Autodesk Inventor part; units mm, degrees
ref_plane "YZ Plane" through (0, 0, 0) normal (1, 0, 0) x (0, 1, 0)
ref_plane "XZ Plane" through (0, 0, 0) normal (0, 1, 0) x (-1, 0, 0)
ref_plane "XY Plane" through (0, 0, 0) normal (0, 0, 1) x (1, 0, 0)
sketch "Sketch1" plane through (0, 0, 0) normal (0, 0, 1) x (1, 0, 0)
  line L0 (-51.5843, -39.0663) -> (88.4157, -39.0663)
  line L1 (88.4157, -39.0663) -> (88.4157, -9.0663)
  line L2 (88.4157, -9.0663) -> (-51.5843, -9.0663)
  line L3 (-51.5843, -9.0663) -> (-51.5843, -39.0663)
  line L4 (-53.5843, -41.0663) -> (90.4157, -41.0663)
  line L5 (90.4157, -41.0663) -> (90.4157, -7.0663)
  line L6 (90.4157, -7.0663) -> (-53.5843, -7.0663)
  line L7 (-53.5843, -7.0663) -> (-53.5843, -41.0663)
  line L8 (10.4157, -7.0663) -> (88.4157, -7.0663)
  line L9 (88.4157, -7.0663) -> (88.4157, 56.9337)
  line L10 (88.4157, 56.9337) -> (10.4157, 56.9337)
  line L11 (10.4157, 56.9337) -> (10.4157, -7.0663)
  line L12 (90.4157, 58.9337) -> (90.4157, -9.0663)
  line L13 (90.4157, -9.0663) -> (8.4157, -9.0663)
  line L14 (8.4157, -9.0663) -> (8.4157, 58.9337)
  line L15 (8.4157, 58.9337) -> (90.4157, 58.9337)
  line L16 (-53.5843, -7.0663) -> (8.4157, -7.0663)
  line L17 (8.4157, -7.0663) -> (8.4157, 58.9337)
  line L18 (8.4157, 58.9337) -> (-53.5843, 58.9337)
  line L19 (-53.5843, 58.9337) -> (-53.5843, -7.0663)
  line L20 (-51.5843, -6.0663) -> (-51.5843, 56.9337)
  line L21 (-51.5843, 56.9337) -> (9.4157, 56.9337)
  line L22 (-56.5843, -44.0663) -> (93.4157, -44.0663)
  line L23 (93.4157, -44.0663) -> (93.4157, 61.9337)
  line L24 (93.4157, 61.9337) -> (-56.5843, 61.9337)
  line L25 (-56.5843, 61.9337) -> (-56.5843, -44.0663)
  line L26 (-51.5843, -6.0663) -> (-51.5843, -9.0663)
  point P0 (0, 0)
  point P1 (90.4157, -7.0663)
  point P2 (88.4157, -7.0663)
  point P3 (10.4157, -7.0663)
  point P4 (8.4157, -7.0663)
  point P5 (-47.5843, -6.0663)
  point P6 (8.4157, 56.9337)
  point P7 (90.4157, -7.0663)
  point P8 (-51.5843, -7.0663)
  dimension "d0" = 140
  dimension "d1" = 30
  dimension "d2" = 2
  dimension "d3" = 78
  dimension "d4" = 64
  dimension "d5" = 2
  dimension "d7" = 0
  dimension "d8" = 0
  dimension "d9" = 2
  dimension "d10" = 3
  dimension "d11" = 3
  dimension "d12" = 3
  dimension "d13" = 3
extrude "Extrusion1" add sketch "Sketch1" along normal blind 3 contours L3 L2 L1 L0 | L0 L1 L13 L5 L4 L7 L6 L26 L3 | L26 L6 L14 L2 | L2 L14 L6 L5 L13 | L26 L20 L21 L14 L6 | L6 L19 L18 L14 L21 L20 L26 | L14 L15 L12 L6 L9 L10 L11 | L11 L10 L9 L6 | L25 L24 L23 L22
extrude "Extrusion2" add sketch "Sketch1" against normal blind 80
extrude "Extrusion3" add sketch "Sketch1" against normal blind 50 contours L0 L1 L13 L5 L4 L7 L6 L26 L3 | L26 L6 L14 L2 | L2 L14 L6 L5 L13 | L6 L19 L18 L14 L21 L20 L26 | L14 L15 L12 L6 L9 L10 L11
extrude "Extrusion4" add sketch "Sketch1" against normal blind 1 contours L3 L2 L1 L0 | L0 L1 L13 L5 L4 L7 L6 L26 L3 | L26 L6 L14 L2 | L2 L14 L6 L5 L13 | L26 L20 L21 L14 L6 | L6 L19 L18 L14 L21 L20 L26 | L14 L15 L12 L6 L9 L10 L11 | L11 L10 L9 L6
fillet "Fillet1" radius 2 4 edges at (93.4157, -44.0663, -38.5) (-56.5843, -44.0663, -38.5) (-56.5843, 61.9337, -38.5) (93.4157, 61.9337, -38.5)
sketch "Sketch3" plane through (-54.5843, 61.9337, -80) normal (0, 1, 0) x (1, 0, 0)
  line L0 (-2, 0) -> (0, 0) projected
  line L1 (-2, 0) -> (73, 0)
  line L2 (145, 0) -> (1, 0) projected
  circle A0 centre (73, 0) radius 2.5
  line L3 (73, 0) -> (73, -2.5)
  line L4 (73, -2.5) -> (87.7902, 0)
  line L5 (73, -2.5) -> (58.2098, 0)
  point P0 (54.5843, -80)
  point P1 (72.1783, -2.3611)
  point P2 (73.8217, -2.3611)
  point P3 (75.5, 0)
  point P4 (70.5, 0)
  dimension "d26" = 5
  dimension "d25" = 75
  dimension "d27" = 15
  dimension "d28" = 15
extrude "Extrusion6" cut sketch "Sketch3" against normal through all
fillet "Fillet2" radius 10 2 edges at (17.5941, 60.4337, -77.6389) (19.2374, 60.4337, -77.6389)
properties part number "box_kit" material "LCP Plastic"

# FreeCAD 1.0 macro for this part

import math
import FreeCAD as App
import Part
import Sketcher


def edges_at(feature, points):
    """Names of the edges that pass closest to the given points."""
    edges = feature.Shape.Edges
    near = lambda p: min(range(len(edges)), key=lambda i: edges[i].distToShape(Part.Vertex(*p))[0])
    return sorted({f"Edge{near(p) + 1}" for p in points})

doc = App.newDocument("Part")
body = doc.addObject("PartDesign::Body", "Body")

# Sketch on XY plane
sketch1 = doc.addObject("Sketcher::SketchObject", "Sketch")
body.addObject(sketch1)
sketch1.AttachmentSupport = (doc.XY_Plane, [""])
sketch1.MapMode = "FlatFace"
sketch1.addGeometry(Part.LineSegment(App.Vector(-56.5843, 61.9337, 0), App.Vector(-56.5843, -44.0663, 0)), False)
sketch1.addGeometry(Part.LineSegment(App.Vector(-56.5843, -44.0663, 0), App.Vector(93.4157, -44.0663, 0)), False)
sketch1.addGeometry(Part.LineSegment(App.Vector(93.4157, -44.0663, 0), App.Vector(93.4157, 61.9337, 0)), False)
sketch1.addGeometry(Part.LineSegment(App.Vector(93.4157, 61.9337, 0), App.Vector(-56.5843, 61.9337, 0)), False)
sketch1.addConstraint(Sketcher.Constraint("Coincident", 0, 2, 1, 1))
sketch1.addConstraint(Sketcher.Constraint("Coincident", 1, 2, 2, 1))
sketch1.addConstraint(Sketcher.Constraint("Coincident", 2, 2, 3, 1))
sketch1.addConstraint(Sketcher.Constraint("Coincident", 3, 2, 0, 1))
sketch1.addConstraint(Sketcher.Constraint("Vertical", 0))
sketch1.addConstraint(Sketcher.Constraint("Horizontal", 1))
sketch1.addConstraint(Sketcher.Constraint("Vertical", 2))
sketch1.addConstraint(Sketcher.Constraint("Horizontal", 3))
sketch1.addConstraint(Sketcher.Constraint("DistanceX", 1, 1, 1, 2, 150.0))
sketch1.addConstraint(Sketcher.Constraint("DistanceY", 0, 2, 0, 1, 106.0))
sketch1.addConstraint(Sketcher.Constraint("DistanceX", 0, 2, -1, 1, 56.5843))
sketch1.addConstraint(Sketcher.Constraint("DistanceY", 0, 2, -1, 1, 44.0663))
pad1 = doc.addObject("PartDesign::Pad", "Pad")
body.addObject(pad1)
pad1.Profile = sketch1
pad1.Length = 3

# Sketch on XY plane
sketch2 = doc.addObject("Sketcher::SketchObject", "Sketch001")
body.addObject(sketch2)
sketch2.AttachmentSupport = (doc.XY_Plane, [""])
sketch2.MapMode = "FlatFace"
sketch2.addGeometry(Part.LineSegment(App.Vector(-56.5843, 61.9337, 0), App.Vector(-56.5843, -44.0663, 0)), False)
sketch2.addGeometry(Part.LineSegment(App.Vector(-56.5843, -44.0663, 0), App.Vector(93.4157, -44.0663, 0)), False)
sketch2.addGeometry(Part.LineSegment(App.Vector(93.4157, -44.0663, 0), App.Vector(93.4157, 61.9337, 0)), False)
sketch2.addGeometry(Part.LineSegment(App.Vector(93.4157, 61.9337, 0), App.Vector(-56.5843, 61.9337, 0)), False)
sketch2.addGeometry(Part.LineSegment(App.Vector(90.4157, 58.9337, 0), App.Vector(90.4157, -41.0663, 0)), False)
sketch2.addGeometry(Part.LineSegment(App.Vector(90.4157, -41.0663, 0), App.Vector(-53.5843, -41.0663, 0)), False)
sketch2.addGeometry(Part.LineSegment(App.Vector(-53.5843, -41.0663, 0), App.Vector(-53.5843, 58.9337, 0)), False)
sketch2.addGeometry(Part.LineSegment(App.Vector(-53.5843, 58.9337, 0), App.Vector(90.4157, 58.9337, 0)), False)
sketch2.addConstraint(Sketcher.Constraint("Coincident", 0, 2, 1, 1))
sketch2.addConstraint(Sketcher.Constraint("Coincident", 1, 2, 2, 1))
sketch2.addConstraint(Sketcher.Constraint("Coincident", 2, 2, 3, 1))
sketch2.addConstraint(Sketcher.Constraint("Coincident", 3, 2, 0, 1))
sketch2.addConstraint(Sketcher.Constraint("Coincident", 4, 2, 5, 1))
sketch2.addConstraint(Sketcher.Constraint("Coincident", 5, 2, 6, 1))
sketch2.addConstraint(Sketcher.Constraint("Coincident", 6, 2, 7, 1))
sketch2.addConstraint(Sketcher.Constraint("Coincident", 7, 2, 4, 1))
sketch2.addConstraint(Sketcher.Constraint("Vertical", 0))
sketch2.addConstraint(Sketcher.Constraint("Horizontal", 1))
sketch2.addConstraint(Sketcher.Constraint("Vertical", 2))
sketch2.addConstraint(Sketcher.Constraint("Horizontal", 3))
sketch2.addConstraint(Sketcher.Constraint("Vertical", 4))
sketch2.addConstraint(Sketcher.Constraint("Horizontal", 5))
sketch2.addConstraint(Sketcher.Constraint("Vertical", 6))
sketch2.addConstraint(Sketcher.Constraint("Horizontal", 7))
sketch2.addConstraint(Sketcher.Constraint("DistanceX", 4, 2, 1, 2, 3.0))
sketch2.addConstraint(Sketcher.Constraint("DistanceY", 1, 2, 4, 2, 3.0))
sketch2.addConstraint(Sketcher.Constraint("DistanceX", 0, 2, 5, 2, 3.0))
sketch2.addConstraint(Sketcher.Constraint("DistanceY", 6, 2, 3, 2, 3.0))
sketch2.addConstraint(Sketcher.Constraint("DistanceX", 1, 1, 1, 2, 150.0))
sketch2.addConstraint(Sketcher.Constraint("DistanceY", 0, 2, 0, 1, 106.0))
sketch2.addConstraint(Sketcher.Constraint("DistanceX", 0, 2, -1, 1, 56.5843))
sketch2.addConstraint(Sketcher.Constraint("DistanceY", 0, 2, -1, 1, 44.0663))
pad2 = doc.addObject("PartDesign::Pad", "Pad001")
body.addObject(pad2)
pad2.Profile = sketch2
pad2.Length = 80
pad2.Reversed = True

# Sketch on XY plane
sketch3 = doc.addObject("Sketcher::SketchObject", "Sketch002")
body.addObject(sketch3)
sketch3.AttachmentSupport = (doc.XY_Plane, [""])
sketch3.MapMode = "FlatFace"
sketch3.addGeometry(Part.LineSegment(App.Vector(90.4157, -41.0663, 0), App.Vector(90.4157, 58.9337, 0)), False)
sketch3.addGeometry(Part.LineSegment(App.Vector(90.4157, 58.9337, 0), App.Vector(-53.5843, 58.9337, 0)), False)
sketch3.addGeometry(Part.LineSegment(App.Vector(-53.5843, 58.9337, 0), App.Vector(-53.5843, -41.0663, 0)), False)
sketch3.addGeometry(Part.LineSegment(App.Vector(-53.5843, -41.0663, 0), App.Vector(90.4157, -41.0663, 0)), False)
sketch3.addGeometry(Part.LineSegment(App.Vector(88.4157, -39.0663, 0), App.Vector(-51.5843, -39.0663, 0)), False)
sketch3.addGeometry(Part.LineSegment(App.Vector(-51.5843, -39.0663, 0), App.Vector(-51.5843, -9.0663, 0)), False)
sketch3.addGeometry(Part.LineSegment(App.Vector(-51.5843, -9.0663, 0), App.Vector(88.4157, -9.0663, 0)), False)
sketch3.addGeometry(Part.LineSegment(App.Vector(88.4157, -9.0663, 0), App.Vector(88.4157, -39.0663, 0)), False)
sketch3.addGeometry(Part.LineSegment(App.Vector(88.4157, -7.0663, 0), App.Vector(10.4157, -7.0663, 0)), False)
sketch3.addGeometry(Part.LineSegment(App.Vector(10.4157, -7.0663, 0), App.Vector(10.4157, 56.9337, 0)), False)
sketch3.addGeometry(Part.LineSegment(App.Vector(10.4157, 56.9337, 0), App.Vector(88.4157, 56.9337, 0)), False)
sketch3.addGeometry(Part.LineSegment(App.Vector(88.4157, 56.9337, 0), App.Vector(88.4157, -7.0663, 0)), False)
sketch3.addGeometry(Part.LineSegment(App.Vector(-51.5843, -7.0663, 0), App.Vector(-51.5843, 56.9337, 0)), False)
sketch3.addGeometry(Part.LineSegment(App.Vector(-51.5843, 56.9337, 0), App.Vector(8.4157, 56.9337, 0)), False)
sketch3.addGeometry(Part.LineSegment(App.Vector(8.4157, 56.9337, 0), App.Vector(8.4157, -7.0663, 0)), False)
sketch3.addGeometry(Part.LineSegment(App.Vector(8.4157, -7.0663, 0), App.Vector(-51.5843, -7.0663, 0)), False)
sketch3.addConstraint(Sketcher.Constraint("Coincident", 0, 2, 1, 1))
sketch3.addConstraint(Sketcher.Constraint("Coincident", 1, 2, 2, 1))
sketch3.addConstraint(Sketcher.Constraint("Coincident", 2, 2, 3, 1))
sketch3.addConstraint(Sketcher.Constraint("Coincident", 3, 2, 0, 1))
sketch3.addConstraint(Sketcher.Constraint("Coincident", 4, 2, 5, 1))
sketch3.addConstraint(Sketcher.Constraint("Coincident", 5, 2, 6, 1))
sketch3.addConstraint(Sketcher.Constraint("Coincident", 6, 2, 7, 1))
sketch3.addConstraint(Sketcher.Constraint("Coincident", 7, 2, 4, 1))
sketch3.addConstraint(Sketcher.Constraint("Coincident", 8, 2, 9, 1))
sketch3.addConstraint(Sketcher.Constraint("Coincident", 9, 2, 10, 1))
sketch3.addConstraint(Sketcher.Constraint("Coincident", 10, 2, 11, 1))
sketch3.addConstraint(Sketcher.Constraint("Coincident", 11, 2, 8, 1))
sketch3.addConstraint(Sketcher.Constraint("Coincident", 12, 2, 13, 1))
sketch3.addConstraint(Sketcher.Constraint("Coincident", 13, 2, 14, 1))
sketch3.addConstraint(Sketcher.Constraint("Coincident", 14, 2, 15, 1))
sketch3.addConstraint(Sketcher.Constraint("Coincident", 15, 2, 12, 1))
sketch3.addConstraint(Sketcher.Constraint("Vertical", 0))
sketch3.addConstraint(Sketcher.Constraint("Horizontal", 1))
sketch3.addConstraint(Sketcher.Constraint("Vertical", 2))
sketch3.addConstraint(Sketcher.Constraint("Horizontal", 3))
sketch3.addConstraint(Sketcher.Constraint("Horizontal", 4))
sketch3.addConstraint(Sketcher.Constraint("Vertical", 5))
sketch3.addConstraint(Sketcher.Constraint("Horizontal", 6))
sketch3.addConstraint(Sketcher.Constraint("Vertical", 7))
sketch3.addConstraint(Sketcher.Constraint("Horizontal", 8))
sketch3.addConstraint(Sketcher.Constraint("Vertical", 9))
sketch3.addConstraint(Sketcher.Constraint("Horizontal", 10))
sketch3.addConstraint(Sketcher.Constraint("Vertical", 11))
sketch3.addConstraint(Sketcher.Constraint("Vertical", 12))
sketch3.addConstraint(Sketcher.Constraint("Horizontal", 13))
sketch3.addConstraint(Sketcher.Constraint("Vertical", 14))
sketch3.addConstraint(Sketcher.Constraint("Horizontal", 15))
sketch3.addConstraint(Sketcher.Constraint("Horizontal", 10, 2, 12, 2))
sketch3.addConstraint(Sketcher.Constraint("Horizontal", 11, 2, 14, 2))
sketch3.addConstraint(Sketcher.Constraint("Vertical", 7, 2, 10, 2))
sketch3.addConstraint(Sketcher.Constraint("Vertical", 5, 2, 12, 2))
sketch3.addConstraint(Sketcher.Constraint("DistanceX", 4, 2, 4, 1, 140.0))
sketch3.addConstraint(Sketcher.Constraint("DistanceX", 8, 2, 8, 1, 78.0))
sketch3.addConstraint(Sketcher.Constraint("DistanceY", 5, 1, 5, 2, 30.0))
sketch3.addConstraint(Sketcher.Constraint("DistanceY", 9, 1, 9, 2, 64.0))
sketch3.addConstraint(Sketcher.Constraint("DistanceX", 2, 2, 4, 2, 2.0))
sketch3.addConstraint(Sketcher.Constraint("DistanceY", 2, 2, 4, 2, 2.0))
sketch3.addConstraint(Sketcher.Constraint("DistanceX", 6, 2, 3, 2, 2.0))
sketch3.addConstraint(Sketcher.Constraint("DistanceY", 5, 2, 8, 2, 2.0))
sketch3.addConstraint(Sketcher.Constraint("DistanceY", 9, 2, 1, 2, 2.0))
sketch3.addConstraint(Sketcher.Constraint("DistanceX", 13, 2, 9, 2, 2.0))
sketch3.addConstraint(Sketcher.Constraint("DistanceX", -1, 1, 0, 2, 90.4157))
sketch3.addConstraint(Sketcher.Constraint("DistanceY", -1, 1, 0, 2, 58.9337))
pad3 = doc.addObject("PartDesign::Pad", "Pad002")
body.addObject(pad3)
pad3.Profile = sketch3
pad3.Length = 50
pad3.Reversed = True

# Sketch on XY plane
sketch4 = doc.addObject("Sketcher::SketchObject", "Sketch003")
body.addObject(sketch4)
sketch4.AttachmentSupport = (doc.XY_Plane, [""])
sketch4.MapMode = "FlatFace"
sketch4.addGeometry(Part.LineSegment(App.Vector(90.4157, -41.0663, 0), App.Vector(90.4157, 58.9337, 0)), False)
sketch4.addGeometry(Part.LineSegment(App.Vector(90.4157, 58.9337, 0), App.Vector(-53.5843, 58.9337, 0)), False)
sketch4.addGeometry(Part.LineSegment(App.Vector(-53.5843, 58.9337, 0), App.Vector(-53.5843, -41.0663, 0)), False)
sketch4.addGeometry(Part.LineSegment(App.Vector(-53.5843, -41.0663, 0), App.Vector(90.4157, -41.0663, 0)), False)
sketch4.addConstraint(Sketcher.Constraint("Coincident", 0, 2, 1, 1))
sketch4.addConstraint(Sketcher.Constraint("Coincident", 1, 2, 2, 1))
sketch4.addConstraint(Sketcher.Constraint("Coincident", 2, 2, 3, 1))
sketch4.addConstraint(Sketcher.Constraint("Coincident", 3, 2, 0, 1))
sketch4.addConstraint(Sketcher.Constraint("Vertical", 0))
sketch4.addConstraint(Sketcher.Constraint("Horizontal", 1))
sketch4.addConstraint(Sketcher.Constraint("Vertical", 2))
sketch4.addConstraint(Sketcher.Constraint("Horizontal", 3))
sketch4.addConstraint(Sketcher.Constraint("DistanceX", 1, 2, 1, 1, 144.0))
sketch4.addConstraint(Sketcher.Constraint("DistanceY", 0, 1, 0, 2, 100.0))
sketch4.addConstraint(Sketcher.Constraint("DistanceX", -1, 1, 0, 2, 90.4157))
sketch4.addConstraint(Sketcher.Constraint("DistanceY", -1, 1, 0, 2, 58.9337))
pad4 = doc.addObject("PartDesign::Pad", "Pad003")
body.addObject(pad4)
pad4.Profile = sketch4
pad4.Length = 1
pad4.Reversed = True
doc.recompute()

fillet = doc.addObject("PartDesign::Fillet", "Fillet")
body.addObject(fillet)
fillet.Base = (pad4, edges_at(pad4, [
    (93.416, -44.066, -38.5),
    (-56.584, -44.066, -38.5),
    (-56.584, 61.934, -38.5),
    (93.416, 61.934, -38.5),
]))
fillet.Radius = 2

# Sketch on XZ plane
sketch5 = doc.addObject("Sketcher::SketchObject", "Sketch004")
body.addObject(sketch5)
sketch5.AttachmentSupport = (doc.XZ_Plane, [""])
sketch5.MapMode = "FlatFace"
sketch5.AttachmentOffset = App.Placement(App.Vector(0, 0, -61.9337), App.Rotation())
sketch5.addGeometry(Part.LineSegment(App.Vector(15.9157, -80, 0), App.Vector(3.6255, -80, 0)), False)
sketch5.addGeometry(Part.LineSegment(App.Vector(3.6255, -80, 0), App.Vector(17.594022, -77.638889, 0)), False)
sketch5.addGeometry(Part.ArcOfCircle(Part.Circle(App.Vector(18.4157, -80, 0), App.Vector(0, 0, 1), 2.5), math.radians(70.811864), math.radians(109.188136)), False)
sketch5.addGeometry(Part.LineSegment(App.Vector(19.237378, -77.638889, 0), App.Vector(33.2059, -80, 0)), False)
sketch5.addGeometry(Part.LineSegment(App.Vector(33.2059, -80, 0), App.Vector(20.9157, -80, 0)), False)
sketch5.addGeometry(Part.ArcOfCircle(Part.Circle(App.Vector(18.4157, -80, 0), App.Vector(0, 0, 1), 2.5), math.radians(180), math.radians(360)), False)
sketch5.addConstraint(Sketcher.Constraint("Coincident", 0, 2, 1, 1))
sketch5.addConstraint(Sketcher.Constraint("Coincident", 1, 2, 2, 2))
sketch5.addConstraint(Sketcher.Constraint("Coincident", 2, 1, 3, 1))
sketch5.addConstraint(Sketcher.Constraint("Coincident", 3, 2, 4, 1))
sketch5.addConstraint(Sketcher.Constraint("Coincident", 4, 2, 5, 2))
sketch5.addConstraint(Sketcher.Constraint("Coincident", 5, 1, 0, 1))
sketch5.addConstraint(Sketcher.Constraint("Horizontal", 0))
sketch5.addConstraint(Sketcher.Constraint("Horizontal", 4))
sketch5.addConstraint(Sketcher.Constraint("Coincident", 5, 3, 2, 3))
sketch5.addConstraint(Sketcher.Constraint("Equal", 2, 5))
sketch5.addConstraint(Sketcher.Constraint("Horizontal", 5, 3, 0, 2))
sketch5.addConstraint(Sketcher.Constraint("Horizontal", 1, 2, 2, 1))
sketch5.addConstraint(Sketcher.Constraint("Horizontal", 0, 2, 3, 2))
sketch5.addConstraint(Sketcher.Constraint("Equal", 0, 4))
sketch5.addConstraint(Sketcher.Constraint("Radius", 2, 2.5))
sketch5.addConstraint(Sketcher.Constraint("DistanceY", 2, 3, -1, 1, 80.0))
sketch5.addConstraint(Sketcher.Constraint("DistanceX", 0, 2, 0, 1, 12.2902))
sketch5.addConstraint(Sketcher.Constraint("DistanceX", -1, 1, 1, 2, 17.594))
sketch5.addConstraint(Sketcher.Constraint("DistanceY", 1, 2, -1, 1, 77.639))
pocket1 = doc.addObject("PartDesign::Pocket", "Pocket")
body.addObject(pocket1)
pocket1.Profile = sketch5
pocket1.Type = "ThroughAll"
pocket1.Reversed = True
doc.recompute()

fillet2 = doc.addObject("PartDesign::Fillet", "Fillet001")
body.addObject(fillet2)
fillet2.Base = (pocket1, edges_at(pocket1, [(17.594, 60.434, -77.639), (19.237, 60.434, -77.639)]))
fillet2.Radius = 10

doc.recompute()
